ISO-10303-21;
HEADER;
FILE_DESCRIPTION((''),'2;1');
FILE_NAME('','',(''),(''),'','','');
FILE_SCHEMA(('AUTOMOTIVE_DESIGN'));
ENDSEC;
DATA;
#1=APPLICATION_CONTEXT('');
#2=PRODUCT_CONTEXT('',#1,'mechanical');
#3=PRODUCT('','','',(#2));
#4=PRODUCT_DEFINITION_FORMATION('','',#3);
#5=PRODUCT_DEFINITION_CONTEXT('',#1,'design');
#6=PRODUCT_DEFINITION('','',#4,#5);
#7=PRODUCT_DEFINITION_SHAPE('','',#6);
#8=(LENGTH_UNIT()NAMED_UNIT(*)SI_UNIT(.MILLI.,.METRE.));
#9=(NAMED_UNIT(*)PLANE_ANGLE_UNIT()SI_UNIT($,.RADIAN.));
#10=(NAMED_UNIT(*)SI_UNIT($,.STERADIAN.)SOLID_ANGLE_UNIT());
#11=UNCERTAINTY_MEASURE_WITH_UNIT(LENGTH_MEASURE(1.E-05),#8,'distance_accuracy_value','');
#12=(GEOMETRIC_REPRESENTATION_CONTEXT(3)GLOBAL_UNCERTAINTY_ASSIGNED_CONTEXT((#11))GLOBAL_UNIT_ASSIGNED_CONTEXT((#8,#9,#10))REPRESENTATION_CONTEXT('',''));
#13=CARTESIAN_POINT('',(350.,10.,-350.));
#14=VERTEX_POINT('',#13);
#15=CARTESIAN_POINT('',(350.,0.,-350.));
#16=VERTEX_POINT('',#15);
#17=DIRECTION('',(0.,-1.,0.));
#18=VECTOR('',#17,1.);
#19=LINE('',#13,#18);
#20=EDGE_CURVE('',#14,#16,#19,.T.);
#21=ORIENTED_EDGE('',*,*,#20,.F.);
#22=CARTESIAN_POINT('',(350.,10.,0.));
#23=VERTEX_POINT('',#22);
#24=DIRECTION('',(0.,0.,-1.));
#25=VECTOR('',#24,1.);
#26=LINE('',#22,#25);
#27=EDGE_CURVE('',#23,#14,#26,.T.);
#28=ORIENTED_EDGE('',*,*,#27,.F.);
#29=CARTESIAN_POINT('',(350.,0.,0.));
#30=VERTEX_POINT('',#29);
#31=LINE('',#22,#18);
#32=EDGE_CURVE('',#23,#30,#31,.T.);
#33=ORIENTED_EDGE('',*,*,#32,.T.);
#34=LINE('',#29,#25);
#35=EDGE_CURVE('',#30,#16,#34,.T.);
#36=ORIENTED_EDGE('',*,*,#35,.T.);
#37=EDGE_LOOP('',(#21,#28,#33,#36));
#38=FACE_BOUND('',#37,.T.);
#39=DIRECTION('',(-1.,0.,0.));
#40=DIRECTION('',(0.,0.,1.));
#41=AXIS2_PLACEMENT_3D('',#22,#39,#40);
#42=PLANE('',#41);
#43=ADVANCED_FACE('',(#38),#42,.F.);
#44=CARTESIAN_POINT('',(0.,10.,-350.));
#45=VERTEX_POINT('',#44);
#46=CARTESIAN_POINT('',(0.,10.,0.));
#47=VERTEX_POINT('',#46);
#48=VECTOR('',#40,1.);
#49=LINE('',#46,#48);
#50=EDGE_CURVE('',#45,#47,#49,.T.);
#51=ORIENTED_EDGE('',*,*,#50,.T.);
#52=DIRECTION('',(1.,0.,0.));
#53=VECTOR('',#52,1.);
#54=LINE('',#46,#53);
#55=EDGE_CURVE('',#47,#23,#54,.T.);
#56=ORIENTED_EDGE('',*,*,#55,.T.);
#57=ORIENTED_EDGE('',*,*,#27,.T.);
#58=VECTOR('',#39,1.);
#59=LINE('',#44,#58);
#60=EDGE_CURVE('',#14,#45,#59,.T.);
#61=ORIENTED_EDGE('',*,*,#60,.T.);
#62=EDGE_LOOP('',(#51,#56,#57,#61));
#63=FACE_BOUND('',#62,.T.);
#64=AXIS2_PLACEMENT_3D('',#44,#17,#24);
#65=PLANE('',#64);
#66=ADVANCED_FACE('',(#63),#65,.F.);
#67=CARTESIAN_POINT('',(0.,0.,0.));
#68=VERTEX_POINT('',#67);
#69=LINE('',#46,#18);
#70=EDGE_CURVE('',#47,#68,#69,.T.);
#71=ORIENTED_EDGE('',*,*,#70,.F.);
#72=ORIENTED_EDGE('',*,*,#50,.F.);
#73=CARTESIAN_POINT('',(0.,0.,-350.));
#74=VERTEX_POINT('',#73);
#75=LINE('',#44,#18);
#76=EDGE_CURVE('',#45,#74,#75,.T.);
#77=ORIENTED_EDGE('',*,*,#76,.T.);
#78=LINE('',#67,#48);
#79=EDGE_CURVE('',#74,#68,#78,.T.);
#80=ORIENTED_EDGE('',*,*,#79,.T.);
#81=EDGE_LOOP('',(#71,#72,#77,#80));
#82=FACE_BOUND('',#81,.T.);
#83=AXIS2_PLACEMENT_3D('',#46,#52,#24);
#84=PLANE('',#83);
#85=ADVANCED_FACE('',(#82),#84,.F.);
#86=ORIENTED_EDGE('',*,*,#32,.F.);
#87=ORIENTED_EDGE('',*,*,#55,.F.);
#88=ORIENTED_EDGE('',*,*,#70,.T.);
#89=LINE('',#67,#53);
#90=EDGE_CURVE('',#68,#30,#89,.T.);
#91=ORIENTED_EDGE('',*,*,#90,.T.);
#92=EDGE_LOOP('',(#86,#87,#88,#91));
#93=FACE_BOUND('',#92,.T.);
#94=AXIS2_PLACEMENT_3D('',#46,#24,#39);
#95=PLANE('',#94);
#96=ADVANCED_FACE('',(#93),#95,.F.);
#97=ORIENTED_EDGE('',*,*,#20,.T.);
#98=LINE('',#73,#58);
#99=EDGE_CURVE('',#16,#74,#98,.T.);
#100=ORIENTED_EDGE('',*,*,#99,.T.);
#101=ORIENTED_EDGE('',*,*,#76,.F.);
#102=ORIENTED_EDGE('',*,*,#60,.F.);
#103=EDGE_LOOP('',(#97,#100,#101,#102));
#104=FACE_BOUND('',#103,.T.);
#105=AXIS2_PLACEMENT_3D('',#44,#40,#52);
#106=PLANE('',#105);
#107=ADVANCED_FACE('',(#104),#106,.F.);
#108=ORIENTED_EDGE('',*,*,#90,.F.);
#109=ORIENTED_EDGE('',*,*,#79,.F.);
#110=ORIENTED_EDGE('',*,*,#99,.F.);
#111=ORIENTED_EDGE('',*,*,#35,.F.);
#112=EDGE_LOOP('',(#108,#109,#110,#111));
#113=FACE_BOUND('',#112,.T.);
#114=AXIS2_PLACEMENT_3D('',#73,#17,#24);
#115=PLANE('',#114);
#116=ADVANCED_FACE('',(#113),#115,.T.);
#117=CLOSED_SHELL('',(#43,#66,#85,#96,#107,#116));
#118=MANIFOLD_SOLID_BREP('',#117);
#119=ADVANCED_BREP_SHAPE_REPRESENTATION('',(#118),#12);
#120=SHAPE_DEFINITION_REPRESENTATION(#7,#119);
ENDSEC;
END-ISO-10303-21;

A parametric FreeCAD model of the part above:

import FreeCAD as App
import Part
import Sketcher

V = App.Vector
Q = App.Units.Quantity


def add_polygon(sketch, points):
    """Adds a closed chain of lines whose ends are joined by coincident constraints."""
    first, n = sketch.GeometryCount, len(points)
    for a, b in zip(points, points[1:] + points[:1]):
        sketch.addGeometry(Part.LineSegment(App.Vector(*a, 0), App.Vector(*b, 0)), False)
    for i in range(n):
        sketch.addConstraint(Sketcher.Constraint("Coincident", first + i, 2, first + (i + 1) % n, 1))

doc = App.newDocument("Part")
body = doc.addObject("PartDesign::Body", "Body")

sketch1 = body.newObject("Sketcher::SketchObject", "Sketch")
sketch1.AttachmentSupport = (doc.getObject("XZ_Plane"), [""])
sketch1.MapMode = "FlatFace"
add_polygon(sketch1, [(0, -350), (0, 0), (350, 0), (350, -350)])
sketch1.addConstraint([
    Sketcher.Constraint("Vertical", 0),
    Sketcher.Constraint("Horizontal", 1),
    Sketcher.Constraint("Vertical", 2),
    Sketcher.Constraint("Horizontal", 3),
    Sketcher.Constraint("Coincident", 0, 2, -1, 1),
    Sketcher.Constraint("Equal", 3, 0),
    Sketcher.Constraint("DistanceX", 1, 1, 1, 2, Q("350 mm")),
])
pad1 = body.newObject("PartDesign::Pad", "Pad")
pad1.Profile = sketch1
pad1.Length = 10
pad1.Reversed = True

doc.recompute()
